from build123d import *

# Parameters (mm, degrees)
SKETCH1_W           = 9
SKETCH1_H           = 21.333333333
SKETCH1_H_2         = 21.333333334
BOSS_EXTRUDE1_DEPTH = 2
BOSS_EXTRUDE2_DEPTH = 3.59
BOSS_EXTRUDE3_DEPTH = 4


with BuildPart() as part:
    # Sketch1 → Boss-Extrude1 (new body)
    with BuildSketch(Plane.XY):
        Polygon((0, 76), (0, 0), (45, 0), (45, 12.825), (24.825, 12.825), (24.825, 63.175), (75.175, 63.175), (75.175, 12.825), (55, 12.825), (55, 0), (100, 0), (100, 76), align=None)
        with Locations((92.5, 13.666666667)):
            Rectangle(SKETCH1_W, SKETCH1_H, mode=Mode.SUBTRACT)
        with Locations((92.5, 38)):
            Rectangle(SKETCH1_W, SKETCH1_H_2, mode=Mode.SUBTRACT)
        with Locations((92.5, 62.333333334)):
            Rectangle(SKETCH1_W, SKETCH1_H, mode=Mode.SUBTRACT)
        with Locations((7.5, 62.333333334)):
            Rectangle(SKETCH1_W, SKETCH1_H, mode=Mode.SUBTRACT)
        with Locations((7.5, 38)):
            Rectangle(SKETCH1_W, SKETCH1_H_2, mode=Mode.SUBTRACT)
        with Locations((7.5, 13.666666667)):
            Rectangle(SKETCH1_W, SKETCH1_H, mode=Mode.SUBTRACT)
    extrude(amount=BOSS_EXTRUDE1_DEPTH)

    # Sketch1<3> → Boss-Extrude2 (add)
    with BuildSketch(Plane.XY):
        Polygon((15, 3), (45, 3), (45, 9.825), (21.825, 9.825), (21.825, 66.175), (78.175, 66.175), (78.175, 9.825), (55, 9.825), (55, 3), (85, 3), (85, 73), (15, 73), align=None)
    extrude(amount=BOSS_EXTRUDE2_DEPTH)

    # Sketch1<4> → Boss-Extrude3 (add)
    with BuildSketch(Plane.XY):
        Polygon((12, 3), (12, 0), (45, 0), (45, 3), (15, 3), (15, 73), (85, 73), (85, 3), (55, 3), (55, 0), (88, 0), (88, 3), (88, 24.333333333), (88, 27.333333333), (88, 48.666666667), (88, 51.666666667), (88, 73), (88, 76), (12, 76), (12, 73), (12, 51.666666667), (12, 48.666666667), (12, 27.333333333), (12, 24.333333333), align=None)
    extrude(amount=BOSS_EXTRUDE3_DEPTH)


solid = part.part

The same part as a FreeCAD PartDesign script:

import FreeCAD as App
import Part
import Sketcher
Q = App.Units.Quantity

doc = App.newDocument("Part")
body = doc.addObject("PartDesign::Body", "Body")

# Sketch on XY plane
sketch1 = body.newObject("Sketcher::SketchObject", "Sketch")
sketch1.AttachmentSupport = (doc.getObject("XY_Plane"), [""])
sketch1.MapMode = "FlatFace"
sketch1.addGeometry([
    Part.LineSegment(App.Vector(0, 76, 0), App.Vector(0, 0, 0)),  # 0
    Part.LineSegment(App.Vector(0, 0, 0), App.Vector(45, 0, 0)),  # 1
    Part.LineSegment(App.Vector(45, 0, 0), App.Vector(45, 13, 0)),  # 2
    Part.LineSegment(App.Vector(45, 13, 0), App.Vector(25, 13, 0)),  # 3
    Part.LineSegment(App.Vector(25, 13, 0), App.Vector(25, 63, 0)),  # 4
    Part.LineSegment(App.Vector(25, 63, 0), App.Vector(75, 63, 0)),  # 5
    Part.LineSegment(App.Vector(75, 63, 0), App.Vector(75, 13, 0)),  # 6
    Part.LineSegment(App.Vector(75, 13, 0), App.Vector(55, 13, 0)),  # 7
    Part.LineSegment(App.Vector(55, 13, 0), App.Vector(55, 0, 0)),  # 8
    Part.LineSegment(App.Vector(55, 0, 0), App.Vector(100, 0, 0)),  # 9
    Part.LineSegment(App.Vector(100, 0, 0), App.Vector(100, 76, 0)),  # 10
    Part.LineSegment(App.Vector(100, 76, 0), App.Vector(0, 76, 0)),  # 11
    Part.LineSegment(App.Vector(12, 3, 0), App.Vector(3, 3, 0)),  # 12
    Part.LineSegment(App.Vector(3, 3, 0), App.Vector(3, 24, 0)),  # 13
    Part.LineSegment(App.Vector(3, 24, 0), App.Vector(12, 24, 0)),  # 14
    Part.LineSegment(App.Vector(12, 24, 0), App.Vector(12, 3, 0)),  # 15
    Part.LineSegment(App.Vector(12, 27, 0), App.Vector(3, 27, 0)),  # 16
    Part.LineSegment(App.Vector(3, 27, 0), App.Vector(3, 49, 0)),  # 17
    Part.LineSegment(App.Vector(3, 49, 0), App.Vector(12, 49, 0)),  # 18
    Part.LineSegment(App.Vector(12, 49, 0), App.Vector(12, 27, 0)),  # 19
    Part.LineSegment(App.Vector(97, 3, 0), App.Vector(88, 3, 0)),  # 20
    Part.LineSegment(App.Vector(88, 3, 0), App.Vector(88, 24, 0)),  # 21
    Part.LineSegment(App.Vector(88, 24, 0), App.Vector(97, 24, 0)),  # 22
    Part.LineSegment(App.Vector(97, 24, 0), App.Vector(97, 3, 0)),  # 23
    Part.LineSegment(App.Vector(97, 27, 0), App.Vector(88, 27, 0)),  # 24
    Part.LineSegment(App.Vector(88, 27, 0), App.Vector(88, 49, 0)),  # 25
    Part.LineSegment(App.Vector(88, 49, 0), App.Vector(97, 49, 0)),  # 26
    Part.LineSegment(App.Vector(97, 49, 0), App.Vector(97, 27, 0)),  # 27
    Part.LineSegment(App.Vector(12, 52, 0), App.Vector(3, 52, 0)),  # 28
    Part.LineSegment(App.Vector(3, 52, 0), App.Vector(3, 73, 0)),  # 29
    Part.LineSegment(App.Vector(3, 73, 0), App.Vector(12, 73, 0)),  # 30
    Part.LineSegment(App.Vector(12, 73, 0), App.Vector(12, 52, 0)),  # 31
    Part.LineSegment(App.Vector(97, 52, 0), App.Vector(88, 52, 0)),  # 32
    Part.LineSegment(App.Vector(88, 52, 0), App.Vector(88, 73, 0)),  # 33
    Part.LineSegment(App.Vector(88, 73, 0), App.Vector(97, 73, 0)),  # 34
    Part.LineSegment(App.Vector(97, 73, 0), App.Vector(97, 52, 0)),  # 35
], False)
sketch1.addConstraint([
    Sketcher.Constraint("Coincident", 0, 2, 1, 1),
    Sketcher.Constraint("Coincident", 1, 2, 2, 1),
    Sketcher.Constraint("Coincident", 2, 2, 3, 1),
    Sketcher.Constraint("Coincident", 3, 2, 4, 1),
    Sketcher.Constraint("Coincident", 4, 2, 5, 1),
    Sketcher.Constraint("Coincident", 5, 2, 6, 1),
    Sketcher.Constraint("Coincident", 6, 2, 7, 1),
    Sketcher.Constraint("Coincident", 7, 2, 8, 1),
    Sketcher.Constraint("Coincident", 8, 2, 9, 1),
    Sketcher.Constraint("Coincident", 9, 2, 10, 1),
    Sketcher.Constraint("Coincident", 10, 2, 11, 1),
    Sketcher.Constraint("Coincident", 11, 2, 0, 1),
    Sketcher.Constraint("Coincident", 12, 2, 13, 1),
    Sketcher.Constraint("Coincident", 13, 2, 14, 1),
    Sketcher.Constraint("Coincident", 14, 2, 15, 1),
    Sketcher.Constraint("Coincident", 15, 2, 12, 1),
    Sketcher.Constraint("Coincident", 16, 2, 17, 1),
    Sketcher.Constraint("Coincident", 17, 2, 18, 1),
    Sketcher.Constraint("Coincident", 18, 2, 19, 1),
    Sketcher.Constraint("Coincident", 19, 2, 16, 1),
    Sketcher.Constraint("Coincident", 20, 2, 21, 1),
    Sketcher.Constraint("Coincident", 21, 2, 22, 1),
    Sketcher.Constraint("Coincident", 22, 2, 23, 1),
    Sketcher.Constraint("Coincident", 23, 2, 20, 1),
    Sketcher.Constraint("Coincident", 24, 2, 25, 1),
    Sketcher.Constraint("Coincident", 25, 2, 26, 1),
    Sketcher.Constraint("Coincident", 26, 2, 27, 1),
    Sketcher.Constraint("Coincident", 27, 2, 24, 1),
    Sketcher.Constraint("Coincident", 28, 2, 29, 1),
    Sketcher.Constraint("Coincident", 29, 2, 30, 1),
    Sketcher.Constraint("Coincident", 30, 2, 31, 1),
    Sketcher.Constraint("Coincident", 31, 2, 28, 1),
    Sketcher.Constraint("Coincident", 32, 2, 33, 1),
    Sketcher.Constraint("Coincident", 33, 2, 34, 1),
    Sketcher.Constraint("Coincident", 34, 2, 35, 1),
    Sketcher.Constraint("Coincident", 35, 2, 32, 1),
    Sketcher.Constraint("Vertical", 0),
    Sketcher.Constraint("Horizontal", 1),
    Sketcher.Constraint("Vertical", 2),
    Sketcher.Constraint("Horizontal", 3),
    Sketcher.Constraint("Vertical", 4),
    Sketcher.Constraint("Horizontal", 5),
    Sketcher.Constraint("Vertical", 6),
    Sketcher.Constraint("Horizontal", 7),
    Sketcher.Constraint("Vertical", 8),
    Sketcher.Constraint("Horizontal", 9),
    Sketcher.Constraint("Vertical", 10),
    Sketcher.Constraint("Horizontal", 11),
    Sketcher.Constraint("Horizontal", 12),
    Sketcher.Constraint("Vertical", 13),
    Sketcher.Constraint("Horizontal", 14),
    Sketcher.Constraint("Vertical", 15),
    Sketcher.Constraint("Horizontal", 16),
    Sketcher.Constraint("Vertical", 17),
    Sketcher.Constraint("Horizontal", 18),
    Sketcher.Constraint("Vertical", 19),
    Sketcher.Constraint("Horizontal", 20),
    Sketcher.Constraint("Vertical", 21),
    Sketcher.Constraint("Horizontal", 22),
    Sketcher.Constraint("Vertical", 23),
    Sketcher.Constraint("Horizontal", 24),
    Sketcher.Constraint("Vertical", 25),
    Sketcher.Constraint("Horizontal", 26),
    Sketcher.Constraint("Vertical", 27),
    Sketcher.Constraint("Horizontal", 28),
    Sketcher.Constraint("Vertical", 29),
    Sketcher.Constraint("Horizontal", 30),
    Sketcher.Constraint("Vertical", 31),
    Sketcher.Constraint("Horizontal", 32),
    Sketcher.Constraint("Vertical", 33),
    Sketcher.Constraint("Horizontal", 34),
    Sketcher.Constraint("Vertical", 35),
    Sketcher.Constraint("Coincident", 0, 2, -1, 1),
    Sketcher.Constraint("PointOnObject", 8, 2, -1),
    Sketcher.Constraint("Horizontal", 3, 2, 6, 2),
    Sketcher.Constraint("Horizontal", 15, 2, 20, 2),
    Sketcher.Constraint("Horizontal", 14, 2, 21, 2),
    Sketcher.Constraint("Horizontal", 19, 2, 24, 2),
    Sketcher.Constraint("Horizontal", 18, 2, 25, 2),
    Sketcher.Constraint("Horizontal", 31, 2, 32, 2),
    Sketcher.Constraint("Horizontal", 30, 2, 33, 2),
    Sketcher.Constraint("Vertical", 13, 2, 16, 2),
    Sketcher.Constraint("Vertical", 15, 2, 18, 2),
    Sketcher.Constraint("Vertical", 21, 2, 24, 2),
    Sketcher.Constraint("Vertical", 23, 2, 26, 2),
    Sketcher.Constraint("Vertical", 17, 2, 28, 2),
    Sketcher.Constraint("Vertical", 19, 2, 30, 2),
    Sketcher.Constraint("Vertical", 25, 2, 32, 2),
    Sketcher.Constraint("Vertical", 27, 2, 34, 2),
    Sketcher.Constraint("Equal", 3, 7),
    Sketcher.Constraint("Equal", 1, 9),
    Sketcher.Constraint("Equal", 18, 20),
    Sketcher.Constraint("Equal", 5, 4),
    Sketcher.Constraint("Equal", 15, 17),
    Sketcher.Constraint("Equal", 27, 29),
    Sketcher.Constraint("DistanceX", 1, 1, 1, 2, Q("45 mm")),
    Sketcher.Constraint("DistanceX", 11, 2, 11, 1, Q("100 mm")),
    Sketcher.Constraint("DistanceX", 12, 2, 12, 1, Q("9 mm")),
    Sketcher.Constraint("DistanceY", 0, 2, 0, 1, Q("76 mm")),
    Sketcher.Constraint("DistanceX", -1, 1, 12, 2, Q("3 mm")),
    Sketcher.Constraint("DistanceY", -1, 1, 12, 2, Q("3 mm")),
    Sketcher.Constraint("DistanceX", -1, 1, 20, 2, Q("88 mm")),
    Sketcher.Constraint("DistanceY", -1, 1, 29, 2, Q("73 mm")),
    Sketcher.Constraint("DistanceY", 13, 2, 16, 2, Q("3 mm")),
    Sketcher.Constraint("DistanceY", 17, 2, 28, 2, Q("3 mm")),
    Sketcher.Constraint("DistanceX", 5, 1, 5, 2, Q("50.35 mm")),
    Sketcher.Constraint("DistanceY", 2, 1, 2, 2, Q("12.825 mm")),
])
pad1 = body.newObject("PartDesign::Pad", "Pad")
pad1.Profile = sketch1
pad1.Length = 2

# Sketch on XY plane
sketch2 = body.newObject("Sketcher::SketchObject", "Sketch001")
sketch2.AttachmentSupport = (doc.getObject("XY_Plane"), [""])
sketch2.MapMode = "FlatFace"
sketch2.addGeometry([
    Part.LineSegment(App.Vector(15, 3, 0), App.Vector(45, 3, 0)),  # 0
    Part.LineSegment(App.Vector(45, 3, 0), App.Vector(45, 10, 0)),  # 1
    Part.LineSegment(App.Vector(45, 10, 0), App.Vector(22, 10, 0)),  # 2
    Part.LineSegment(App.Vector(22, 10, 0), App.Vector(22, 66, 0)),  # 3
    Part.LineSegment(App.Vector(22, 66, 0), App.Vector(78, 66, 0)),  # 4
    Part.LineSegment(App.Vector(78, 66, 0), App.Vector(78, 10, 0)),  # 5
    Part.LineSegment(App.Vector(78, 10, 0), App.Vector(55, 10, 0)),  # 6
    Part.LineSegment(App.Vector(55, 10, 0), App.Vector(55, 3, 0)),  # 7
    Part.LineSegment(App.Vector(55, 3, 0), App.Vector(85, 3, 0)),  # 8
    Part.LineSegment(App.Vector(85, 3, 0), App.Vector(85, 73, 0)),  # 9
    Part.LineSegment(App.Vector(85, 73, 0), App.Vector(15, 73, 0)),  # 10
    Part.LineSegment(App.Vector(15, 73, 0), App.Vector(15, 3, 0)),  # 11
], False)
sketch2.addConstraint([
    Sketcher.Constraint("Coincident", 0, 2, 1, 1),
    Sketcher.Constraint("Coincident", 1, 2, 2, 1),
    Sketcher.Constraint("Coincident", 2, 2, 3, 1),
    Sketcher.Constraint("Coincident", 3, 2, 4, 1),
    Sketcher.Constraint("Coincident", 4, 2, 5, 1),
    Sketcher.Constraint("Coincident", 5, 2, 6, 1),
    Sketcher.Constraint("Coincident", 6, 2, 7, 1),
    Sketcher.Constraint("Coincident", 7, 2, 8, 1),
    Sketcher.Constraint("Coincident", 8, 2, 9, 1),
    Sketcher.Constraint("Coincident", 9, 2, 10, 1),
    Sketcher.Constraint("Coincident", 10, 2, 11, 1),
    Sketcher.Constraint("Coincident", 11, 2, 0, 1),
    Sketcher.Constraint("Horizontal", 0),
    Sketcher.Constraint("Vertical", 1),
    Sketcher.Constraint("Horizontal", 2),
    Sketcher.Constraint("Vertical", 3),
    Sketcher.Constraint("Horizontal", 4),
    Sketcher.Constraint("Vertical", 5),
    Sketcher.Constraint("Horizontal", 6),
    Sketcher.Constraint("Vertical", 7),
    Sketcher.Constraint("Horizontal", 8),
    Sketcher.Constraint("Vertical", 9),
    Sketcher.Constraint("Horizontal", 10),
    Sketcher.Constraint("Vertical", 11),
    Sketcher.Constraint("Horizontal", 2, 2, 5, 2),
    Sketcher.Constraint("Horizontal", 0, 2, 7, 2),
    Sketcher.Constraint("Equal", 2, 6),
    Sketcher.Constraint("Equal", 0, 8),
    Sketcher.Constraint("Equal", 4, 3),
    Sketcher.Constraint("Equal", 10, 9),
    Sketcher.Constraint("DistanceX", 0, 1, 0, 2, Q("30 mm")),
    Sketcher.Constraint("DistanceX", 10, 2, 10, 1, Q("70 mm")),
    Sketcher.Constraint("DistanceX", -1, 1, 0, 2, Q("45 mm")),
    Sketcher.Constraint("DistanceY", -1, 1, 0, 2, Q("3 mm")),
    Sketcher.Constraint("DistanceX", 4, 1, 4, 2, Q("56.35 mm")),
    Sketcher.Constraint("DistanceY", 1, 1, 1, 2, Q("6.825 mm")),
])
pad2 = body.newObject("PartDesign::Pad", "Pad001")
pad2.Profile = sketch2
pad2.Length = 3.59

# Sketch on XY plane
sketch3 = body.newObject("Sketcher::SketchObject", "Sketch002")
sketch3.AttachmentSupport = (doc.getObject("XY_Plane"), [""])
sketch3.MapMode = "FlatFace"
sketch3.addGeometry([
    Part.LineSegment(App.Vector(12, 0, 0), App.Vector(45, 0, 0)),  # 0
    Part.LineSegment(App.Vector(45, 0, 0), App.Vector(45, 3, 0)),  # 1
    Part.LineSegment(App.Vector(45, 3, 0), App.Vector(15, 3, 0)),  # 2
    Part.LineSegment(App.Vector(15, 3, 0), App.Vector(15, 73, 0)),  # 3
    Part.LineSegment(App.Vector(15, 73, 0), App.Vector(85, 73, 0)),  # 4
    Part.LineSegment(App.Vector(85, 73, 0), App.Vector(85, 3, 0)),  # 5
    Part.LineSegment(App.Vector(85, 3, 0), App.Vector(55, 3, 0)),  # 6
    Part.LineSegment(App.Vector(55, 3, 0), App.Vector(55, 0, 0)),  # 7
    Part.LineSegment(App.Vector(55, 0, 0), App.Vector(88, 0, 0)),  # 8
    Part.LineSegment(App.Vector(88, 0, 0), App.Vector(88, 76, 0)),  # 9
    Part.LineSegment(App.Vector(88, 76, 0), App.Vector(12, 76, 0)),  # 10
    Part.LineSegment(App.Vector(12, 76, 0), App.Vector(12, 0, 0)),  # 11
], False)
sketch3.addConstraint([
    Sketcher.Constraint("Coincident", 0, 2, 1, 1),
    Sketcher.Constraint("Coincident", 1, 2, 2, 1),
    Sketcher.Constraint("Coincident", 2, 2, 3, 1),
    Sketcher.Constraint("Coincident", 3, 2, 4, 1),
    Sketcher.Constraint("Coincident", 4, 2, 5, 1),
    Sketcher.Constraint("Coincident", 5, 2, 6, 1),
    Sketcher.Constraint("Coincident", 6, 2, 7, 1),
    Sketcher.Constraint("Coincident", 7, 2, 8, 1),
    Sketcher.Constraint("Coincident", 8, 2, 9, 1),
    Sketcher.Constraint("Coincident", 9, 2, 10, 1),
    Sketcher.Constraint("Coincident", 10, 2, 11, 1),
    Sketcher.Constraint("Coincident", 11, 2, 0, 1),
    Sketcher.Constraint("Horizontal", 0),
    Sketcher.Constraint("Vertical", 1),
    Sketcher.Constraint("Horizontal", 2),
    Sketcher.Constraint("Vertical", 3),
    Sketcher.Constraint("Horizontal", 4),
    Sketcher.Constraint("Vertical", 5),
    Sketcher.Constraint("Horizontal", 6),
    Sketcher.Constraint("Vertical", 7),
    Sketcher.Constraint("Horizontal", 8),
    Sketcher.Constraint("Vertical", 9),
    Sketcher.Constraint("Horizontal", 10),
    Sketcher.Constraint("Vertical", 11),
    Sketcher.Constraint("PointOnObject", 0, 2, -1),
    Sketcher.Constraint("PointOnObject", 7, 2, -1),
    Sketcher.Constraint("Horizontal", 2, 2, 5, 2),
    Sketcher.Constraint("Equal", 2, 6),
    Sketcher.Constraint("Equal", 0, 8),
    Sketcher.Constraint("Equal", 4, 3),
    Sketcher.Constraint("Equal", 10, 9),
    Sketcher.Constraint("DistanceX", 0, 1, 0, 2, Q("33 mm")),
    Sketcher.Constraint("DistanceX", 2, 2, 2, 1, Q("30 mm")),
    Sketcher.Constraint("DistanceX", 4, 1, 4, 2, Q("70 mm")),
    Sketcher.Constraint("DistanceY", 1, 1, 1, 2, Q("3 mm")),
    Sketcher.Constraint("DistanceX", -1, 1, 0, 2, Q("45 mm")),
])
pad3 = body.newObject("PartDesign::Pad", "Pad002")
pad3.Profile = sketch3
pad3.Length = 4

doc.recompute()
